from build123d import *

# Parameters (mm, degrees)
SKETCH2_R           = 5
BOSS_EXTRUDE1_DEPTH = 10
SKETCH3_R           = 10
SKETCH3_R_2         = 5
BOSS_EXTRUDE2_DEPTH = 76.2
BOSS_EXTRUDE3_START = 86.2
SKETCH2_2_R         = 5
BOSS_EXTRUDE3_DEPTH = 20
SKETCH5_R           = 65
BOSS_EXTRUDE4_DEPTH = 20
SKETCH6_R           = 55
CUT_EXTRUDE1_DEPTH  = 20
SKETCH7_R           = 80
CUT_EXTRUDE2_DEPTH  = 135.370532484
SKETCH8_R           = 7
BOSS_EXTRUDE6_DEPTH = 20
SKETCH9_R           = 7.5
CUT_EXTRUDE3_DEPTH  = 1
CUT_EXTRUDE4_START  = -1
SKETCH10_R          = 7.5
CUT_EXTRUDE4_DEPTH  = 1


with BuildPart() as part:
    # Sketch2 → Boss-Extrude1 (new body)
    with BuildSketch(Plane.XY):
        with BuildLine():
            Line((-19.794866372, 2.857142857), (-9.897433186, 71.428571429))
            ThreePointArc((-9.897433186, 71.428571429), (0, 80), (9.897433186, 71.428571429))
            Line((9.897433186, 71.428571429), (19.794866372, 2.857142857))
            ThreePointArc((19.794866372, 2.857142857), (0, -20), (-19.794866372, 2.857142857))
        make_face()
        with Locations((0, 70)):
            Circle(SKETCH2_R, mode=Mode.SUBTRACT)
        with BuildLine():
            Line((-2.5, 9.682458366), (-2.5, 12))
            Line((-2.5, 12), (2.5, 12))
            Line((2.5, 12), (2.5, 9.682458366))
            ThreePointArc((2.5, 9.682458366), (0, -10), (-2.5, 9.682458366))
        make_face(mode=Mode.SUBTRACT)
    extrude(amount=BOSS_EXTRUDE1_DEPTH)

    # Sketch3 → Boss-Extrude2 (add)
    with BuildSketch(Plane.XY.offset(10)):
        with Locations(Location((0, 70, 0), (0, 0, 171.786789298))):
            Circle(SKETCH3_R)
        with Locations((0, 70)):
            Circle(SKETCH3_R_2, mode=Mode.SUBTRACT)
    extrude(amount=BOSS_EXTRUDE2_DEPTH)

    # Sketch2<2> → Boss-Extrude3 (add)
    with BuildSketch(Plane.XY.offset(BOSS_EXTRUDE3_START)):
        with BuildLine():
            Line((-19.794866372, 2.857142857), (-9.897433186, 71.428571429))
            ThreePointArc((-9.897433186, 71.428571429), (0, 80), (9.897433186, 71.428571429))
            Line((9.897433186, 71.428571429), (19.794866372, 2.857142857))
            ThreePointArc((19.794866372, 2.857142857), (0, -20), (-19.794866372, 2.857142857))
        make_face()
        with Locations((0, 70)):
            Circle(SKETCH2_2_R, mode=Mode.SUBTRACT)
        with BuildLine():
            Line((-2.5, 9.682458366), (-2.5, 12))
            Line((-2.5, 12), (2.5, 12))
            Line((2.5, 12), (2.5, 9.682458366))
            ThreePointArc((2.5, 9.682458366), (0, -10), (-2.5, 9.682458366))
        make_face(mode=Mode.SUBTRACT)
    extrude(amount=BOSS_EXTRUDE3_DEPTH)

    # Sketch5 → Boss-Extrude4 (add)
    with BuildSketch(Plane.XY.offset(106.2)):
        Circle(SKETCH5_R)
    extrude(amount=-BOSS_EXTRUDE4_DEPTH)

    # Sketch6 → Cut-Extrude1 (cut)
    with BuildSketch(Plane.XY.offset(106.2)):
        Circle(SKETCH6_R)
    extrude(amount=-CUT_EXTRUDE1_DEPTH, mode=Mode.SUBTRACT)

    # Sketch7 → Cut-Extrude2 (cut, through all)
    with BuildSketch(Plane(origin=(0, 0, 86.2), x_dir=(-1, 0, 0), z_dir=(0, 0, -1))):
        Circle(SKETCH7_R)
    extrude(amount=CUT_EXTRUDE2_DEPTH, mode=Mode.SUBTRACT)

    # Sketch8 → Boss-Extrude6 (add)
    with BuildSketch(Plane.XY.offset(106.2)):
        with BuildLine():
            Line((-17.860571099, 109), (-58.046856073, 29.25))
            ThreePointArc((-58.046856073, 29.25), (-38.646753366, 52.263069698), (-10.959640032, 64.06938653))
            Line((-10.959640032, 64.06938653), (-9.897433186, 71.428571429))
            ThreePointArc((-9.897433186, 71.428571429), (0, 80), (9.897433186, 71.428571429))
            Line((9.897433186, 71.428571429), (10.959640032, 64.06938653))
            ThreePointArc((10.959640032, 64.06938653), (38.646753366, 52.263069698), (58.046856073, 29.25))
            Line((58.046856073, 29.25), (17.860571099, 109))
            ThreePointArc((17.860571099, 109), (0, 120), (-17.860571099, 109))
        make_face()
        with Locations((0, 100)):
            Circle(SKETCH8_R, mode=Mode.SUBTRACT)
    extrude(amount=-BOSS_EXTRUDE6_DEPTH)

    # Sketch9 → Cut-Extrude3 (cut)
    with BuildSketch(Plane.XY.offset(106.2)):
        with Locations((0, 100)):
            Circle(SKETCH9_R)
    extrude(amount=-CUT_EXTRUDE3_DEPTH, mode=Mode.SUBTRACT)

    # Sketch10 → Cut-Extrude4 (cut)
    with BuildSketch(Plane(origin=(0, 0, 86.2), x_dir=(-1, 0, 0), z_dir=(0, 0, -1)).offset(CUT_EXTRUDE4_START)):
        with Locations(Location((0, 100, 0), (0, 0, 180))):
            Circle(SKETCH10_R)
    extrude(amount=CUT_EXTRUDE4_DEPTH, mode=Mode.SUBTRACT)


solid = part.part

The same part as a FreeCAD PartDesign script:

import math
import FreeCAD as App
import Part
import Sketcher

V = App.Vector

doc = App.newDocument("Part")
body = doc.addObject("PartDesign::Body", "Body")

# Sketch on XY plane
sketch1 = body.newObject("Sketcher::SketchObject", "Sketch")
sketch1.AttachmentSupport = (doc.getObject("XY_Plane"), [""])
sketch1.MapMode = "FlatFace"
sketch1.addGeometry(Part.LineSegment(V(-9.9, 71.4, 0), V(-19.8, 2.9, 0)), False)
sketch1.addGeometry(Part.ArcOfCircle(Part.Circle(V(0, 0, 0), V(0, 0, 1), 20), math.radians(172), math.radians(368)), False)
sketch1.addGeometry(Part.LineSegment(V(19.8, 2.9, 0), V(9.9, 71.4, 0)), False)
sketch1.addGeometry(Part.ArcOfCircle(Part.Circle(V(0, 70, 0), V(0, 0, 1), 10), math.radians(8), math.radians(172)), False)
sketch1.addGeometry(Part.LineSegment(V(-2.5, 9.7, 0), V(-2.5, 12, 0)), False)
sketch1.addGeometry(Part.LineSegment(V(-2.5, 12, 0), V(2.5, 12, 0)), False)
sketch1.addGeometry(Part.LineSegment(V(2.5, 12, 0), V(2.5, 9.7, 0)), False)
sketch1.addGeometry(Part.ArcOfCircle(Part.Circle(V(0, 0, 0), V(0, 0, 1), 10), math.radians(104), math.radians(436)), False)
sketch1.addGeometry(Part.Circle(V(0, 70, 0), V(0, 0, 1), 5), False)
sketch1.addConstraint(Sketcher.Constraint("Tangent", 0, 2, 1, 1))
sketch1.addConstraint(Sketcher.Constraint("Tangent", 1, 2, 2, 1))
sketch1.addConstraint(Sketcher.Constraint("Tangent", 2, 2, 3, 1))
sketch1.addConstraint(Sketcher.Constraint("Tangent", 3, 2, 0, 1))
sketch1.addConstraint(Sketcher.Constraint("Coincident", 4, 2, 5, 1))
sketch1.addConstraint(Sketcher.Constraint("Coincident", 5, 2, 6, 1))
sketch1.addConstraint(Sketcher.Constraint("Coincident", 6, 2, 7, 2))
sketch1.addConstraint(Sketcher.Constraint("Coincident", 7, 1, 4, 1))
sketch1.addConstraint(Sketcher.Constraint("Vertical", 4))
sketch1.addConstraint(Sketcher.Constraint("Horizontal", 5))
sketch1.addConstraint(Sketcher.Constraint("Vertical", 6))
sketch1.addConstraint(Sketcher.Constraint("Coincident", 1, 3, -1, 1))
sketch1.addConstraint(Sketcher.Constraint("Coincident", 7, 3, -1, 1))
sketch1.addConstraint(Sketcher.Constraint("Coincident", 8, 3, 3, 3))
sketch1.addConstraint(Sketcher.Constraint("Equal", 3, 7))
sketch1.addConstraint(Sketcher.Constraint("PointOnObject", 3, 3, -2))
sketch1.addConstraint(Sketcher.Constraint("Horizontal", 6, 2, 7, 1))
sketch1.addConstraint(Sketcher.Constraint("Diameter", 8, 10.0))
sketch1.addConstraint(Sketcher.Constraint("Radius", 1, 20.0))
sketch1.addConstraint(Sketcher.Constraint("Radius", 3, 10.0))
sketch1.addConstraint(Sketcher.Constraint("DistanceX", 5, 1, 5, 2, 5.0))
sketch1.addConstraint(Sketcher.Constraint("DistanceY", -1, 1, 3, 3, 70.0))
sketch1.addConstraint(Sketcher.Constraint("DistanceY", -1, 1, 4, 2, 12.0))
pad1 = body.newObject("PartDesign::Pad", "Pad")
pad1.Profile = sketch1
pad1.Length = 10

# Sketch on XY plane
sketch2 = body.newObject("Sketcher::SketchObject", "Sketch001")
sketch2.AttachmentSupport = (doc.getObject("XY_Plane"), [""])
sketch2.MapMode = "FlatFace"
sketch2.AttachmentOffset = App.Placement(V(0, 0, 10), App.Rotation())
sketch2.addGeometry(Part.Circle(V(0, 70, 0), V(0, 0, 1), 10), False)
sketch2.addGeometry(Part.Circle(V(0, 70, 0), V(0, 0, 1), 5), False)
sketch2.addConstraint(Sketcher.Constraint("Coincident", 1, 3, 0, 3))
sketch2.addConstraint(Sketcher.Constraint("PointOnObject", 0, 3, -2))
sketch2.addConstraint(Sketcher.Constraint("Diameter", 0, 20.0))
sketch2.addConstraint(Sketcher.Constraint("Diameter", 1, 10.0))
sketch2.addConstraint(Sketcher.Constraint("DistanceY", -1, 1, 0, 3, 70.0))
pad2 = body.newObject("PartDesign::Pad", "Pad001")
pad2.Profile = sketch2
pad2.Length = 76.2

# Sketch on XY plane
sketch3 = body.newObject("Sketcher::SketchObject", "Sketch002")
sketch3.AttachmentSupport = (doc.getObject("XY_Plane"), [""])
sketch3.MapMode = "FlatFace"
sketch3.AttachmentOffset = App.Placement(V(0, 0, 86.2), App.Rotation())
sketch3.addGeometry(Part.LineSegment(V(-9.9, 71.4, 0), V(-19.8, 2.9, 0)), False)
sketch3.addGeometry(Part.ArcOfCircle(Part.Circle(V(0, 0, 0), V(0, 0, 1), 20), math.radians(172), math.radians(368)), False)
sketch3.addGeometry(Part.LineSegment(V(19.8, 2.9, 0), V(9.9, 71.4, 0)), False)
sketch3.addGeometry(Part.ArcOfCircle(Part.Circle(V(0, 70, 0), V(0, 0, 1), 10), math.radians(8), math.radians(172)), False)
sketch3.addGeometry(Part.LineSegment(V(-2.5, 9.7, 0), V(-2.5, 12, 0)), False)
sketch3.addGeometry(Part.LineSegment(V(-2.5, 12, 0), V(2.5, 12, 0)), False)
sketch3.addGeometry(Part.LineSegment(V(2.5, 12, 0), V(2.5, 9.7, 0)), False)
sketch3.addGeometry(Part.ArcOfCircle(Part.Circle(V(0, 0, 0), V(0, 0, 1), 10), math.radians(104), math.radians(436)), False)
sketch3.addGeometry(Part.Circle(V(0, 70, 0), V(0, 0, 1), 5), False)
sketch3.addConstraint(Sketcher.Constraint("Tangent", 0, 2, 1, 1))
sketch3.addConstraint(Sketcher.Constraint("Tangent", 1, 2, 2, 1))
sketch3.addConstraint(Sketcher.Constraint("Tangent", 2, 2, 3, 1))
sketch3.addConstraint(Sketcher.Constraint("Tangent", 3, 2, 0, 1))
sketch3.addConstraint(Sketcher.Constraint("Coincident", 4, 2, 5, 1))
sketch3.addConstraint(Sketcher.Constraint("Coincident", 5, 2, 6, 1))
sketch3.addConstraint(Sketcher.Constraint("Coincident", 6, 2, 7, 2))
sketch3.addConstraint(Sketcher.Constraint("Coincident", 7, 1, 4, 1))
sketch3.addConstraint(Sketcher.Constraint("Vertical", 4))
sketch3.addConstraint(Sketcher.Constraint("Horizontal", 5))
sketch3.addConstraint(Sketcher.Constraint("Vertical", 6))
sketch3.addConstraint(Sketcher.Constraint("Coincident", 1, 3, -1, 1))
sketch3.addConstraint(Sketcher.Constraint("Coincident", 7, 3, -1, 1))
sketch3.addConstraint(Sketcher.Constraint("Coincident", 8, 3, 3, 3))
sketch3.addConstraint(Sketcher.Constraint("Equal", 3, 7))
sketch3.addConstraint(Sketcher.Constraint("PointOnObject", 3, 3, -2))
sketch3.addConstraint(Sketcher.Constraint("Horizontal", 6, 2, 7, 1))
sketch3.addConstraint(Sketcher.Constraint("Diameter", 8, 10.0))
sketch3.addConstraint(Sketcher.Constraint("Radius", 1, 20.0))
sketch3.addConstraint(Sketcher.Constraint("Radius", 3, 10.0))
sketch3.addConstraint(Sketcher.Constraint("DistanceX", 5, 1, 5, 2, 5.0))
sketch3.addConstraint(Sketcher.Constraint("DistanceY", -1, 1, 3, 3, 70.0))
sketch3.addConstraint(Sketcher.Constraint("DistanceY", -1, 1, 4, 2, 12.0))
pad3 = body.newObject("PartDesign::Pad", "Pad002")
pad3.Profile = sketch3
pad3.Length = 20

# Sketch on XY plane
sketch4 = body.newObject("Sketcher::SketchObject", "Sketch003")
sketch4.AttachmentSupport = (doc.getObject("XY_Plane"), [""])
sketch4.MapMode = "FlatFace"
sketch4.AttachmentOffset = App.Placement(V(0, 0, 106.2), App.Rotation())
sketch4.addGeometry(Part.Circle(V(0, 0, 0), V(0, 0, 1), 65), False)
sketch4.addConstraint(Sketcher.Constraint("Coincident", 0, 3, -1, 1))
sketch4.addConstraint(Sketcher.Constraint("Diameter", 0, 130.0))
pad4 = body.newObject("PartDesign::Pad", "Pad003")
pad4.Profile = sketch4
pad4.Length = 20
pad4.Reversed = True

# Sketch on XY plane
sketch5 = body.newObject("Sketcher::SketchObject", "Sketch004")
sketch5.AttachmentSupport = (doc.getObject("XY_Plane"), [""])
sketch5.MapMode = "FlatFace"
sketch5.AttachmentOffset = App.Placement(V(0, 0, 106.2), App.Rotation())
sketch5.addGeometry(Part.Circle(V(0, 0, 0), V(0, 0, 1), 55), False)
sketch5.addConstraint(Sketcher.Constraint("Coincident", 0, 3, -1, 1))
sketch5.addConstraint(Sketcher.Constraint("Diameter", 0, 110.0))
pocket1 = body.newObject("PartDesign::Pocket", "Pocket")
pocket1.Profile = sketch5
pocket1.Length = 20

# Sketch on XY plane
sketch6 = body.newObject("Sketcher::SketchObject", "Sketch005")
sketch6.AttachmentSupport = (doc.getObject("XY_Plane"), [""])
sketch6.MapMode = "FlatFace"
sketch6.AttachmentOffset = App.Placement(V(0, 0, 86.2), App.Rotation())
sketch6.addGeometry(Part.Circle(V(0, 0, 0), V(0, 0, 1), 80), False)
sketch6.addConstraint(Sketcher.Constraint("Coincident", 0, 3, -1, 1))
sketch6.addConstraint(Sketcher.Constraint("Diameter", 0, 160.0))
pocket2 = body.newObject("PartDesign::Pocket", "Pocket001")
pocket2.Profile = sketch6
pocket2.Type = "ThroughAll"

# Sketch on XY plane
sketch7 = body.newObject("Sketcher::SketchObject", "Sketch006")
sketch7.AttachmentSupport = (doc.getObject("XY_Plane"), [""])
sketch7.MapMode = "FlatFace"
sketch7.AttachmentOffset = App.Placement(V(0, 0, 106.2), App.Rotation())
sketch7.addGeometry(Part.LineSegment(V(-18, 109, 0), V(-58, 29, 0)), False)
sketch7.addGeometry(Part.ArcOfCircle(Part.Circle(V(0, 0, 0), V(0, 0, 1), 65), math.radians(100), math.radians(153)), False)
sketch7.addGeometry(Part.LineSegment(V(-11, 64, 0), V(-10, 71, 0)), False)
sketch7.addGeometry(Part.ArcOfCircle(Part.Circle(V(0, 70, 0), V(0, 0, 1), 10), math.radians(8), math.radians(172)), False)
sketch7.addGeometry(Part.LineSegment(V(10, 71, 0), V(11, 64, 0)), False)
sketch7.addGeometry(Part.ArcOfCircle(Part.Circle(V(0, 0, 0), V(0, 0, 1), 65), math.radians(27), math.radians(80)), False)
sketch7.addGeometry(Part.LineSegment(V(58, 29, 0), V(18, 109, 0)), False)
sketch7.addGeometry(Part.ArcOfCircle(Part.Circle(V(0, 100, 0), V(0, 0, 1), 20), math.radians(27), math.radians(153)), False)
sketch7.addGeometry(Part.Circle(V(0, 100, 0), V(0, 0, 1), 7), False)
sketch7.addConstraint(Sketcher.Constraint("Tangent", 0, 2, 1, 2))
sketch7.addConstraint(Sketcher.Constraint("Coincident", 1, 1, 2, 1))
sketch7.addConstraint(Sketcher.Constraint("Tangent", 2, 2, 3, 2))
sketch7.addConstraint(Sketcher.Constraint("Tangent", 3, 1, 4, 1))
sketch7.addConstraint(Sketcher.Constraint("Coincident", 4, 2, 5, 2))
sketch7.addConstraint(Sketcher.Constraint("Tangent", 5, 1, 6, 1))
sketch7.addConstraint(Sketcher.Constraint("Tangent", 6, 2, 7, 1))
sketch7.addConstraint(Sketcher.Constraint("Tangent", 7, 2, 0, 1))
sketch7.addConstraint(Sketcher.Constraint("Coincident", 1, 3, -1, 1))
sketch7.addConstraint(Sketcher.Constraint("Coincident", 5, 3, -1, 1))
sketch7.addConstraint(Sketcher.Constraint("Coincident", 8, 3, 7, 3))
sketch7.addConstraint(Sketcher.Constraint("Equal", 1, 5))
sketch7.addConstraint(Sketcher.Constraint("Symmetric", 2, 2, 3, 1, -2))
sketch7.addConstraint(Sketcher.Constraint("PointOnObject", 7, 3, -2))
sketch7.addConstraint(Sketcher.Constraint("Diameter", 8, 14.0))
sketch7.addConstraint(Sketcher.Constraint("Radius", 1, 65.0))
sketch7.addConstraint(Sketcher.Constraint("Radius", 3, 10.0))
sketch7.addConstraint(Sketcher.Constraint("Radius", 7, 20.0))
sketch7.addConstraint(Sketcher.Constraint("DistanceY", -1, 1, 3, 3, 70.0))
sketch7.addConstraint(Sketcher.Constraint("DistanceY", -1, 1, 7, 3, 100.0))
sketch7.addConstraint(Sketcher.Constraint("DistanceX", 1, 1, -1, 1, 10.95964))
pad5 = body.newObject("PartDesign::Pad", "Pad004")
pad5.Profile = sketch7
pad5.Length = 20
pad5.Reversed = True

# Sketch on XY plane
sketch8 = body.newObject("Sketcher::SketchObject", "Sketch007")
sketch8.AttachmentSupport = (doc.getObject("XY_Plane"), [""])
sketch8.MapMode = "FlatFace"
sketch8.AttachmentOffset = App.Placement(V(0, 0, 106.2), App.Rotation())
sketch8.addGeometry(Part.Circle(V(0, 100, 0), V(0, 0, 1), 8), False)
sketch8.addConstraint(Sketcher.Constraint("PointOnObject", 0, 3, -2))
sketch8.addConstraint(Sketcher.Constraint("Diameter", 0, 15.0))
sketch8.addConstraint(Sketcher.Constraint("DistanceY", -1, 1, 0, 3, 100.0))
pocket3 = body.newObject("PartDesign::Pocket", "Pocket002")
pocket3.Profile = sketch8
pocket3.Length = 1

# Sketch on XY plane
sketch9 = body.newObject("Sketcher::SketchObject", "Sketch008")
sketch9.AttachmentSupport = (doc.getObject("XY_Plane"), [""])
sketch9.MapMode = "FlatFace"
sketch9.AttachmentOffset = App.Placement(V(0, 0, 87.2), App.Rotation())
sketch9.addGeometry(Part.Circle(V(0, 100, 0), V(0, 0, 1), 8), False)
sketch9.addConstraint(Sketcher.Constraint("PointOnObject", 0, 3, -2))
sketch9.addConstraint(Sketcher.Constraint("Diameter", 0, 15.0))
sketch9.addConstraint(Sketcher.Constraint("DistanceY", -1, 1, 0, 3, 100.0))
pocket4 = body.newObject("PartDesign::Pocket", "Pocket003")
pocket4.Profile = sketch9
pocket4.Length = 1

doc.recompute()
